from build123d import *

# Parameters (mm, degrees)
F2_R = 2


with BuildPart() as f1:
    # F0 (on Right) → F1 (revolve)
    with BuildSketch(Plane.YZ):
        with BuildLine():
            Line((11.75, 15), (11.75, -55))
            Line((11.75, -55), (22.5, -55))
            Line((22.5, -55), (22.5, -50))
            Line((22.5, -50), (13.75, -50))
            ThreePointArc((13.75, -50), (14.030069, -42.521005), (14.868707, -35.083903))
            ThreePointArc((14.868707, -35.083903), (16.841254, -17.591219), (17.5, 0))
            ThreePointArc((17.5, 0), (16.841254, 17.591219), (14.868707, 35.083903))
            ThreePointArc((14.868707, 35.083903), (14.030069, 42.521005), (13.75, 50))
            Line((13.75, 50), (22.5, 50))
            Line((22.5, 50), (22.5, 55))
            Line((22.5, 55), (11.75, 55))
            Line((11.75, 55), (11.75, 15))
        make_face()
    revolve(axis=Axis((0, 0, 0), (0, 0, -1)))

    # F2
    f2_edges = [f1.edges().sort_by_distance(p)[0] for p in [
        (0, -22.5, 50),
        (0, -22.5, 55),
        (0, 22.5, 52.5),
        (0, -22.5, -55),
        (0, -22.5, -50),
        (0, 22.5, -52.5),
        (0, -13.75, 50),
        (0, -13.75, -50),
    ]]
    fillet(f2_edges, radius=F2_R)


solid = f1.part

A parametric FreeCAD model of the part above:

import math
import FreeCAD as App
import Part
import Sketcher
from FreeCAD import Vector
Q = App.Units.Quantity


def edges_at(feature, points):
    """Names of the edges that pass closest to the given points."""
    edges = feature.Shape.Edges
    near = lambda p: min(range(len(edges)), key=lambda i: edges[i].distToShape(Part.Vertex(*p))[0])
    return sorted({f"Edge{near(p) + 1}" for p in points})

doc = App.newDocument("Part")
body = doc.addObject("PartDesign::Body", "Body")

# Sketch on YZ plane
sketch1 = doc.addObject("Sketcher::SketchObject", "Sketch")
body.addObject(sketch1)
sketch1.AttachmentSupport = (doc.YZ_Plane, [""])
sketch1.MapMode = "FlatFace"
sketch1.addGeometry(Part.LineSegment(Vector(11.75, -55, 0), Vector(22.5, -55, 0)), False)
sketch1.addGeometry(Part.LineSegment(Vector(22.5, -55, 0), Vector(22.5, -50, 0)), False)
sketch1.addGeometry(Part.LineSegment(Vector(22.5, -50, 0), Vector(13.75, -50, 0)), False)
sketch1.addGeometry(Part.ArcOfCircle(Part.Circle(Vector(113.750041, -50.000001, 0), Vector(0, 0, 1), 100.000041), math.radians(171.421696), math.radians(179.999999)), False)
sketch1.addGeometry(Part.ArcOfCircle(Part.Circle(Vector(-217.708409, 0.000008, 0), Vector(0, 0, 1), 235.208409), math.radians(-8.578306), math.radians(-0.000002)), False)
sketch1.addGeometry(Part.ArcOfCircle(Part.Circle(Vector(-217.708409, -0.000008, 0), Vector(0, 0, 1), 235.208409), math.radians(0.000002), math.radians(8.578306)), False)
sketch1.addGeometry(Part.ArcOfCircle(Part.Circle(Vector(113.750041, 50.000001, 0), Vector(0, 0, 1), 100.000041), math.radians(-179.999999), math.radians(-171.421696)), False)
sketch1.addGeometry(Part.LineSegment(Vector(13.75, 50, 0), Vector(22.5, 50, 0)), False)
sketch1.addGeometry(Part.LineSegment(Vector(22.5, 50, 0), Vector(22.5, 55, 0)), False)
sketch1.addGeometry(Part.LineSegment(Vector(22.5, 55, 0), Vector(11.75, 55, 0)), False)
sketch1.addGeometry(Part.LineSegment(Vector(11.75, 55, 0), Vector(11.75, -55, 0)), False)
sketch1.addConstraint(Sketcher.Constraint("Coincident", 0, 2, 1, 1))
sketch1.addConstraint(Sketcher.Constraint("Coincident", 1, 2, 2, 1))
sketch1.addConstraint(Sketcher.Constraint("Coincident", 2, 2, 3, 2))
sketch1.addConstraint(Sketcher.Constraint("Coincident", 3, 1, 4, 1))
sketch1.addConstraint(Sketcher.Constraint("Coincident", 4, 2, 5, 1))
sketch1.addConstraint(Sketcher.Constraint("Coincident", 5, 2, 6, 2))
sketch1.addConstraint(Sketcher.Constraint("Coincident", 6, 1, 7, 1))
sketch1.addConstraint(Sketcher.Constraint("Coincident", 7, 2, 8, 1))
sketch1.addConstraint(Sketcher.Constraint("Coincident", 8, 2, 9, 1))
sketch1.addConstraint(Sketcher.Constraint("Coincident", 9, 2, 10, 1))
sketch1.addConstraint(Sketcher.Constraint("Coincident", 10, 2, 0, 1))
sketch1.addConstraint(Sketcher.Constraint("Horizontal", 0))
sketch1.addConstraint(Sketcher.Constraint("Vertical", 1))
sketch1.addConstraint(Sketcher.Constraint("Horizontal", 2))
sketch1.addConstraint(Sketcher.Constraint("Horizontal", 7))
sketch1.addConstraint(Sketcher.Constraint("Vertical", 8))
sketch1.addConstraint(Sketcher.Constraint("Horizontal", 9))
sketch1.addConstraint(Sketcher.Constraint("Vertical", 10))
sketch1.addConstraint(Sketcher.Constraint("PointOnObject", 4, 2, -1))
sketch1.addConstraint(Sketcher.Constraint("DistanceY", 1, 1, 1, 2, Q("5 mm")))
sketch1.addConstraint(Sketcher.Constraint("DistanceY", 8, 1, 8, 2, Q("5 mm")))
sketch1.addConstraint(Sketcher.Constraint("DistanceY", 10, 2, 10, 1, Q("110 mm")))
sketch1.addConstraint(Sketcher.Constraint("DistanceY", 3, 3, -1, 1, Q("50.000001 mm")))
sketch1.addConstraint(Sketcher.Constraint("DistanceY", -1, 1, 6, 3, Q("50.000001 mm")))
sketch1.addConstraint(Sketcher.Constraint("DistanceY", 0, 2, -1, 1, Q("55 mm")))
sketch1.addConstraint(Sketcher.Constraint("DistanceX", 4, 2, 1, 2, Q("5 mm")))
sketch1.addConstraint(Sketcher.Constraint("DistanceX", 4, 2, 7, 2, Q("5 mm")))
sketch1.addConstraint(Sketcher.Constraint("DistanceX", 9, 2, 6, 1, Q("2 mm")))
sketch1.addConstraint(Sketcher.Constraint("DistanceX", 10, 2, 2, 2, Q("2 mm")))
sketch1.addConstraint(Sketcher.Constraint("DistanceX", 0, 1, 0, 2, Q("10.75 mm")))
sketch1.addConstraint(Sketcher.Constraint("DistanceX", -1, 1, 0, 2, Q("22.5 mm")))
sketch1.addConstraint(Sketcher.Constraint("Radius", 3, Q("100.000041 mm")))
sketch1.addConstraint(Sketcher.Constraint("Radius", 4, Q("235.208409 mm")))
sketch1.addConstraint(Sketcher.Constraint("Radius", 5, Q("235.208409 mm")))
sketch1.addConstraint(Sketcher.Constraint("Radius", 6, Q("100.000041 mm")))
sketch1.addConstraint(Sketcher.Constraint("DistanceY", 3, 3, 3, 1, Q("14.916098 mm")))
sketch1.addConstraint(Sketcher.Constraint("DistanceX", -1, 1, 5, 2, Q("14.868707 mm")))
revolution = doc.addObject("PartDesign::Revolution", "Revolution")
body.addObject(revolution)
revolution.Profile = sketch1
revolution.ReferenceAxis = (sketch1, ["V_Axis"])
revolution.Angle = 360
doc.recompute()

fillet = doc.addObject("PartDesign::Fillet", "Fillet")
body.addObject(fillet)
fillet.Base = (revolution, edges_at(revolution, [
    (0, -22.5, 50),
    (0, -22.5, 55),
    (0, 22.5, 52.5),
    (0, -22.5, -55),
    (0, -22.5, -50),
    (0, 22.5, -52.5),
    (0, -13.75, 50),
    (0, -13.75, -50),
]))
fillet.Radius = 2

doc.recompute()
